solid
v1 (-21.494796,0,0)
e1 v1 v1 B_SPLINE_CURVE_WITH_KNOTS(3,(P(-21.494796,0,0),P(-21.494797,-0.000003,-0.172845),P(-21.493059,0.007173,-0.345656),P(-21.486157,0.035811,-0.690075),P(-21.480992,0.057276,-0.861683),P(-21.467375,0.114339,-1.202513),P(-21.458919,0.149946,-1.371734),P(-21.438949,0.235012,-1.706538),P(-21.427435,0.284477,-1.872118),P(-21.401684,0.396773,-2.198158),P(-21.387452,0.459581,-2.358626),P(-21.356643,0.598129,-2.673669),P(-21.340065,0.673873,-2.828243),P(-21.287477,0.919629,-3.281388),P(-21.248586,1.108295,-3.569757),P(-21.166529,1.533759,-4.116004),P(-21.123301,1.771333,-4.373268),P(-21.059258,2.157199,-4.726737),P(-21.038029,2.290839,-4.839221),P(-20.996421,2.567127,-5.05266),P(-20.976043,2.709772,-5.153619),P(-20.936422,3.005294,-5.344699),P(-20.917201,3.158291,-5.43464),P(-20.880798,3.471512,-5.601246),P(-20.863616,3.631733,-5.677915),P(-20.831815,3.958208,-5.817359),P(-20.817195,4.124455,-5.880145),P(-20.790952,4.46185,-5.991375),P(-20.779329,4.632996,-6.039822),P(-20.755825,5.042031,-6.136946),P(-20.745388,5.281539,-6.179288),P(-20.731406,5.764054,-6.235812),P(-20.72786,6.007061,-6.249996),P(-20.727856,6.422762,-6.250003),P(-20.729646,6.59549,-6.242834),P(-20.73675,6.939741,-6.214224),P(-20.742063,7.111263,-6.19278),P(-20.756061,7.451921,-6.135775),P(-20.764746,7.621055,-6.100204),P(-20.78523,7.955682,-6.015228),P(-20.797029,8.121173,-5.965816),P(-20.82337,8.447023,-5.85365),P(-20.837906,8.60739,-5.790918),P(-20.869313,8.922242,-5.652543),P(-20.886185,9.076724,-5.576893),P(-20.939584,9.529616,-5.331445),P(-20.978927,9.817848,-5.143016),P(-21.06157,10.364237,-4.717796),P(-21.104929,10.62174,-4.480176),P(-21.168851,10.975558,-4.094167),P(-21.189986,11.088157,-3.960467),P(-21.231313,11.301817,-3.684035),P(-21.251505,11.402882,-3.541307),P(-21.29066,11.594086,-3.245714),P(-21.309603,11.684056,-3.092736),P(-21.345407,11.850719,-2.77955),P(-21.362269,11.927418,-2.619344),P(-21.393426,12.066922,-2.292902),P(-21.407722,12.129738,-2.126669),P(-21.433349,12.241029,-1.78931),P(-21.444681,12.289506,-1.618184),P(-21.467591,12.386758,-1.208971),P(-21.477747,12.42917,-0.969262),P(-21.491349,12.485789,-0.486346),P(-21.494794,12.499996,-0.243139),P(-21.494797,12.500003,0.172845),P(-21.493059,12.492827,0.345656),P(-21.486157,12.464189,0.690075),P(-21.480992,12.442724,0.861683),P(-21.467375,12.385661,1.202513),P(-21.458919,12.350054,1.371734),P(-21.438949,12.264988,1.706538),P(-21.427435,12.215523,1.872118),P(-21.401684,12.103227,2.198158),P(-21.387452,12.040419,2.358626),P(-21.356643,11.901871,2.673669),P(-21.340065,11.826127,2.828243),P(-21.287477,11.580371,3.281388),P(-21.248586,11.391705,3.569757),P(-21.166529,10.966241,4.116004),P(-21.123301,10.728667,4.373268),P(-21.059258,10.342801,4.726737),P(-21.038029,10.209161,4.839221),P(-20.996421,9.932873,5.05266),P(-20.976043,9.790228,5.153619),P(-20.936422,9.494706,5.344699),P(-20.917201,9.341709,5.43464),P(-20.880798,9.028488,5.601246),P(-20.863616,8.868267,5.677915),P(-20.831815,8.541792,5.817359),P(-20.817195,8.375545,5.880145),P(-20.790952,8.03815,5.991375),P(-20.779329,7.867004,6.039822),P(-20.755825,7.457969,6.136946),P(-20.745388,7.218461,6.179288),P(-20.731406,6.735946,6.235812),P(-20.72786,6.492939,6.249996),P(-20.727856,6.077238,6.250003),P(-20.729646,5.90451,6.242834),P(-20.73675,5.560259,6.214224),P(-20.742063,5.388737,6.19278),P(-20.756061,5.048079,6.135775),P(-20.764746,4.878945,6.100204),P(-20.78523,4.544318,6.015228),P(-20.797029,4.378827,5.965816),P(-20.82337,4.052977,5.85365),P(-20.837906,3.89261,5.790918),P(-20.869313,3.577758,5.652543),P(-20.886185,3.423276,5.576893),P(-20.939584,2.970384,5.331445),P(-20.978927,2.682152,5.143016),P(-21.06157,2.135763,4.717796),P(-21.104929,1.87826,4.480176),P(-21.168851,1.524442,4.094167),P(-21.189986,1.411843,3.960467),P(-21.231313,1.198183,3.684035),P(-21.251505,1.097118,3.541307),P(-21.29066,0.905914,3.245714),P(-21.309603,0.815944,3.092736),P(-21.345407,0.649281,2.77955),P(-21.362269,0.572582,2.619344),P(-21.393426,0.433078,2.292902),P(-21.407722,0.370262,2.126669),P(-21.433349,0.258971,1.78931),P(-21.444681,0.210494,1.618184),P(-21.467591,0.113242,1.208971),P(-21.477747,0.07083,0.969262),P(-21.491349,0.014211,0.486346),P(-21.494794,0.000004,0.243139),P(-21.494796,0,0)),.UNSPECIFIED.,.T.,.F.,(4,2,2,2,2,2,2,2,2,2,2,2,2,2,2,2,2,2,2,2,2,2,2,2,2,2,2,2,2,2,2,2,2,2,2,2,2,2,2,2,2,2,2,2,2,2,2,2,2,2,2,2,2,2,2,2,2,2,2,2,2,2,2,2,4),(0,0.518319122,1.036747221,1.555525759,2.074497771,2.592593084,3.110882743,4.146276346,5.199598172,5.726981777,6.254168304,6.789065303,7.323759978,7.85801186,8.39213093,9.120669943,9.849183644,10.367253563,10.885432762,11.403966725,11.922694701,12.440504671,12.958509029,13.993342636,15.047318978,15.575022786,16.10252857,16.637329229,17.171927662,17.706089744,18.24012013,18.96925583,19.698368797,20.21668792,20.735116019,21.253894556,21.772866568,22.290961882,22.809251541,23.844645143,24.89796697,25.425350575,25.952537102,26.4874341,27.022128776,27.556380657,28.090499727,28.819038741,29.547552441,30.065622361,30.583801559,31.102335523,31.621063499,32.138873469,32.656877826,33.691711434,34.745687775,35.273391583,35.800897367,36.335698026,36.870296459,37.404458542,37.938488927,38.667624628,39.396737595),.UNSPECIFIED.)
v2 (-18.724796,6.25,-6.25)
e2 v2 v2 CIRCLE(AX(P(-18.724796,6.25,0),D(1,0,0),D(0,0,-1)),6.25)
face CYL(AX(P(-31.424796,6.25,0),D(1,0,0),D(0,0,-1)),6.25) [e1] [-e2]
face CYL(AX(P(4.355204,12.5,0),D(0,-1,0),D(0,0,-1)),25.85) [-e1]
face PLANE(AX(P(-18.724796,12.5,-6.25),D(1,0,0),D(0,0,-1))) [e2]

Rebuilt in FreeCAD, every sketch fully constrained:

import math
import FreeCAD as App
import Part
import Sketcher
from FreeCAD import Vector
Q = App.Units.Quantity

doc = App.newDocument("Part")
body = doc.addObject("PartDesign::Body", "Body")

sketch1 = body.newObject("Sketcher::SketchObject", "Sketch")
sketch1.AttachmentSupport = (doc.getObject("XZ_Plane"), [""])
sketch1.MapMode = "FlatFace"
sketch1.addGeometry(Part.LineSegment(Vector(-18.7, -6.2, 0), Vector(-20.7, -6.2, 0)), False)
sketch1.addGeometry(Part.ArcOfCircle(Part.Circle(Vector(4.4, 0, 0), Vector(0, 0, 1), 25.8), math.radians(166), math.radians(194)), False)
sketch1.addGeometry(Part.LineSegment(Vector(-20.7, 6.2, 0), Vector(-18.7, 6.2, 0)), False)
sketch1.addGeometry(Part.LineSegment(Vector(-18.7, 6.2, 0), Vector(-18.7, -6.2, 0)), False)
sketch1.addConstraint(Sketcher.Constraint("Coincident", 0, 2, 1, 2))
sketch1.addConstraint(Sketcher.Constraint("Coincident", 1, 1, 2, 1))
sketch1.addConstraint(Sketcher.Constraint("Coincident", 2, 2, 3, 1))
sketch1.addConstraint(Sketcher.Constraint("Coincident", 3, 2, 0, 1))
sketch1.addConstraint(Sketcher.Constraint("Horizontal", 0))
sketch1.addConstraint(Sketcher.Constraint("Horizontal", 2))
sketch1.addConstraint(Sketcher.Constraint("Vertical", 3))
sketch1.addConstraint(Sketcher.Constraint("Symmetric", 0, 2, 1, 1, -1))
sketch1.addConstraint(Sketcher.Constraint("Radius", 1, Q("25.85 mm")))
sketch1.addConstraint(Sketcher.Constraint("DistanceY", 3, 2, 3, 1, Q("12.5 mm")))
sketch1.addConstraint(Sketcher.Constraint("DistanceX", 2, 2, 1, 3, Q("23.08 mm")))
sketch1.addConstraint(Sketcher.Constraint("DistanceX", -1, 1, 1, 3, Q("4.355204 mm")))
pad1 = body.newObject("PartDesign::Pad", "Pad")
pad1.Profile = sketch1
pad1.Length = 12.5
pad1.Reversed = True

sketch2 = body.newObject("Sketcher::SketchObject", "Sketch001")
sketch2.AttachmentSupport = (doc.getObject("YZ_Plane"), [""])
sketch2.MapMode = "FlatFace"
sketch2.AttachmentOffset = App.Placement(Vector(0, 0, -18.724796), App.Rotation())
sketch2.addGeometry(Part.LineSegment(Vector(12, 6, 0), Vector(6, 6, 0)), False)
sketch2.addGeometry(Part.ArcOfCircle(Part.Circle(Vector(6, 0, 0), Vector(0, 0, 1), 6), math.radians(0), math.radians(90)), False)
sketch2.addGeometry(Part.LineSegment(Vector(12, 0, 0), Vector(12, 6, 0)), False)
sketch2.addGeometry(Part.ArcOfCircle(Part.Circle(Vector(6, 0, 0), Vector(0, 0, 1), 6), math.radians(-90), math.radians(0)), False)
sketch2.addGeometry(Part.LineSegment(Vector(6, -6, 0), Vector(12, -6, 0)), False)
sketch2.addGeometry(Part.LineSegment(Vector(12, -6, 0), Vector(12, 0, 0)), False)
sketch2.addGeometry(Part.ArcOfCircle(Part.Circle(Vector(6, 0, 0), Vector(0, 0, 1), 6), math.radians(-180), math.radians(-90)), False)
sketch2.addGeometry(Part.LineSegment(Vector(0, 0, 0), Vector(0, -6, 0)), False)
sketch2.addGeometry(Part.LineSegment(Vector(0, -6, 0), Vector(6, -6, 0)), False)
sketch2.addGeometry(Part.LineSegment(Vector(6, 6, 0), Vector(0, 6, 0)), False)
sketch2.addGeometry(Part.LineSegment(Vector(0, 6, 0), Vector(0, 0, 0)), False)
sketch2.addGeometry(Part.ArcOfCircle(Part.Circle(Vector(6, 0, 0), Vector(0, 0, 1), 6), math.radians(90), math.radians(180)), False)
sketch2.addConstraint(Sketcher.Constraint("Tangent", 0, 2, 1, 2))
sketch2.addConstraint(Sketcher.Constraint("Tangent", 1, 1, 2, 1))
sketch2.addConstraint(Sketcher.Constraint("Coincident", 2, 2, 0, 1))
sketch2.addConstraint(Sketcher.Constraint("Tangent", 3, 1, 4, 1))
sketch2.addConstraint(Sketcher.Constraint("Coincident", 4, 2, 5, 1))
sketch2.addConstraint(Sketcher.Constraint("Tangent", 5, 2, 3, 2))
sketch2.addConstraint(Sketcher.Constraint("Tangent", 6, 1, 7, 1))
sketch2.addConstraint(Sketcher.Constraint("Coincident", 7, 2, 8, 1))
sketch2.addConstraint(Sketcher.Constraint("Tangent", 8, 2, 6, 2))
sketch2.addConstraint(Sketcher.Constraint("Coincident", 9, 2, 10, 1))
sketch2.addConstraint(Sketcher.Constraint("Tangent", 10, 2, 11, 2))
sketch2.addConstraint(Sketcher.Constraint("Tangent", 11, 1, 9, 1))
sketch2.addConstraint(Sketcher.Constraint("Horizontal", 0))
sketch2.addConstraint(Sketcher.Constraint("Vertical", 2))
sketch2.addConstraint(Sketcher.Constraint("Horizontal", 4))
sketch2.addConstraint(Sketcher.Constraint("Vertical", 5))
sketch2.addConstraint(Sketcher.Constraint("Vertical", 7))
sketch2.addConstraint(Sketcher.Constraint("Horizontal", 8))
sketch2.addConstraint(Sketcher.Constraint("Horizontal", 9))
sketch2.addConstraint(Sketcher.Constraint("Vertical", 10))
sketch2.addConstraint(Sketcher.Constraint("Coincident", 6, 1, -1, 1))
sketch2.addConstraint(Sketcher.Constraint("Coincident", 10, 2, -1, 1))
sketch2.addConstraint(Sketcher.Constraint("Coincident", 3, 3, 1, 3))
sketch2.addConstraint(Sketcher.Constraint("Coincident", 6, 3, 1, 3))
sketch2.addConstraint(Sketcher.Constraint("Coincident", 11, 1, 0, 2))
sketch2.addConstraint(Sketcher.Constraint("Equal", 1, 3))
sketch2.addConstraint(Sketcher.Constraint("Radius", 1, Q("6.25 mm")))
pocket1 = body.newObject("PartDesign::Pocket", "Pocket")
pocket1.Profile = sketch2
pocket1.Length = 12.7

doc.recompute()
